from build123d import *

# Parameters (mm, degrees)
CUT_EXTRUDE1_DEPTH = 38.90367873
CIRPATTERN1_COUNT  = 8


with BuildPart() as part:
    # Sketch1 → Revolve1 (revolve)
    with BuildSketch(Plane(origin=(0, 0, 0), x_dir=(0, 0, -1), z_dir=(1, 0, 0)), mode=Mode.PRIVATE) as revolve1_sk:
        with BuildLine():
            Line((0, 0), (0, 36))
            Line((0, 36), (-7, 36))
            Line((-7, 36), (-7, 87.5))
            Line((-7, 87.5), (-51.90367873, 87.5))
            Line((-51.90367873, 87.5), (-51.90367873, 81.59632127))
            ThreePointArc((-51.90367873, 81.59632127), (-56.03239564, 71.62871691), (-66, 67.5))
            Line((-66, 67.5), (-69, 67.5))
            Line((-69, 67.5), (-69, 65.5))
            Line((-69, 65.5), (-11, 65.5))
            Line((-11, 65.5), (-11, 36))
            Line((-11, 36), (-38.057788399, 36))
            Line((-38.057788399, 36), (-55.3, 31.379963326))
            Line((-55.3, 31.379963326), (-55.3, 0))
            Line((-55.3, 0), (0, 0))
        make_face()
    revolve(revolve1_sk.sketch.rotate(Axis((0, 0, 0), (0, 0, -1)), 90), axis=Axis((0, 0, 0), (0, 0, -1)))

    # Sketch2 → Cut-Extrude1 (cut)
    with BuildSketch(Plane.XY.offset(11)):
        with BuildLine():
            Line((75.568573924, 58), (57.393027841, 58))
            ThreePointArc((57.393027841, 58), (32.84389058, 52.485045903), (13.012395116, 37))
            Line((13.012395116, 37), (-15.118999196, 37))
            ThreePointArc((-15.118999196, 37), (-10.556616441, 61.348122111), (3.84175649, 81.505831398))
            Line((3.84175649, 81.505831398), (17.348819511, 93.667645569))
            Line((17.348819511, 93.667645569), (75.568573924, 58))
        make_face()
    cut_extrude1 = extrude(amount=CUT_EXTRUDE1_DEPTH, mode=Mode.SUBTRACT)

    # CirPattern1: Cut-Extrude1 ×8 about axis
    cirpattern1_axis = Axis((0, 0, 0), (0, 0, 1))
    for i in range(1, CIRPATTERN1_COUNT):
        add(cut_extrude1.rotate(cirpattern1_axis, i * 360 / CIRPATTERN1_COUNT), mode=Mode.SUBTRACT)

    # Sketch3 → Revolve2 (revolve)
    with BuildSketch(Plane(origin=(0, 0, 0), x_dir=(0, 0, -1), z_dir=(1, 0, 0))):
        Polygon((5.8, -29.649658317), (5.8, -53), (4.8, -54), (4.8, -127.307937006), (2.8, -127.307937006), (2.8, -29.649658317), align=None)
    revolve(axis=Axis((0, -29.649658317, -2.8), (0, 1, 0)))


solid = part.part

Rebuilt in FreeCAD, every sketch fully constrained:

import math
import FreeCAD as App
import Part
import Sketcher
from FreeCAD import Vector
Q = App.Units.Quantity

doc = App.newDocument("Part")
body = doc.addObject("PartDesign::Body", "Body")

# Sketch on YZ plane
sketch1 = body.newObject("Sketcher::SketchObject", "Sketch")
sketch1.AttachmentSupport = (doc.getObject("YZ_Plane"), [""])
sketch1.MapMode = "FlatFace"
sketch1.addGeometry([
    Part.LineSegment(Vector(0, 0, 0), Vector(36, 0, 0)),  # 0
    Part.LineSegment(Vector(36, 0, 0), Vector(36, 7, 0)),  # 1
    Part.LineSegment(Vector(36, 7, 0), Vector(87.5, 7, 0)),  # 2
    Part.LineSegment(Vector(87.5, 7, 0), Vector(87.5, 51.9, 0)),  # 3
    Part.LineSegment(Vector(87.5, 51.9, 0), Vector(81.6, 51.9, 0)),  # 4
    Part.ArcOfCircle(Part.Circle(Vector(81.6, 66, 0), Vector(0, 0, 1), 14.1), math.radians(180), math.radians(270)),  # 5
    Part.LineSegment(Vector(67.5, 66, 0), Vector(67.5, 69, 0)),  # 6
    Part.LineSegment(Vector(67.5, 69, 0), Vector(65.5, 69, 0)),  # 7
    Part.LineSegment(Vector(65.5, 69, 0), Vector(65.5, 11, 0)),  # 8
    Part.LineSegment(Vector(65.5, 11, 0), Vector(36, 11, 0)),  # 9
    Part.LineSegment(Vector(36, 11, 0), Vector(36, 38.1, 0)),  # 10
    Part.LineSegment(Vector(36, 38.1, 0), Vector(31.4, 55.3, 0)),  # 11
    Part.LineSegment(Vector(31.4, 55.3, 0), Vector(0, 55.3, 0)),  # 12
    Part.LineSegment(Vector(0, 55.3, 0), Vector(0, 0, 0)),  # 13
], False)
sketch1.addConstraint([
    Sketcher.Constraint("Coincident", 0, 2, 1, 1),
    Sketcher.Constraint("Coincident", 1, 2, 2, 1),
    Sketcher.Constraint("Coincident", 2, 2, 3, 1),
    Sketcher.Constraint("Coincident", 3, 2, 4, 1),
    Sketcher.Constraint("Tangent", 4, 2, 5, 2),
    Sketcher.Constraint("Tangent", 5, 1, 6, 1),
    Sketcher.Constraint("Coincident", 6, 2, 7, 1),
    Sketcher.Constraint("Coincident", 7, 2, 8, 1),
    Sketcher.Constraint("Coincident", 8, 2, 9, 1),
    Sketcher.Constraint("Coincident", 9, 2, 10, 1),
    Sketcher.Constraint("Coincident", 10, 2, 11, 1),
    Sketcher.Constraint("Coincident", 11, 2, 12, 1),
    Sketcher.Constraint("Coincident", 12, 2, 13, 1),
    Sketcher.Constraint("Coincident", 13, 2, 0, 1),
    Sketcher.Constraint("Horizontal", 0),
    Sketcher.Constraint("Vertical", 1),
    Sketcher.Constraint("Horizontal", 2),
    Sketcher.Constraint("Vertical", 3),
    Sketcher.Constraint("Horizontal", 4),
    Sketcher.Constraint("Vertical", 6),
    Sketcher.Constraint("Horizontal", 7),
    Sketcher.Constraint("Vertical", 8),
    Sketcher.Constraint("Horizontal", 9),
    Sketcher.Constraint("Vertical", 10),
    Sketcher.Constraint("Horizontal", 12),
    Sketcher.Constraint("Vertical", 13),
    Sketcher.Constraint("Coincident", 13, 2, -1, 1),
    Sketcher.Constraint("Vertical", 1, 2, 9, 2),
    Sketcher.Constraint("DistanceX", 0, 1, 0, 2, 36.0),
    Sketcher.Constraint("DistanceX", 7, 2, 7, 1, 2.0),
    Sketcher.Constraint("DistanceY", 1, 1, 1, 2, 7.0),
    Sketcher.Constraint("DistanceY", 6, 1, 6, 2, 3.0),
    Sketcher.Constraint("DistanceY", 8, 2, 8, 1, 58.0),
    Sketcher.Constraint("Angle", 11, Q("105 deg")),
    Sketcher.Constraint("DistanceX", 2, 1, 2, 2, 51.5),
    Sketcher.Constraint("DistanceX", 9, 2, 9, 1, 29.5),
    Sketcher.Constraint("DistanceY", 13, 2, 13, 1, 55.3),
    Sketcher.Constraint("DistanceY", -1, 1, 5, 3, 66.0),
    Sketcher.Constraint("Radius", 5, 14.096321),
    Sketcher.Constraint("DistanceY", 10, 1, 10, 2, 27.057788),
])
revolution = body.newObject("PartDesign::Revolution", "Revolution")
revolution.Profile = sketch1
revolution.ReferenceAxis = (sketch1, ["V_Axis"])
revolution.Angle = 360

# Sketch on XY plane
sketch2 = body.newObject("Sketcher::SketchObject", "Sketch001")
sketch2.AttachmentSupport = (doc.getObject("XY_Plane"), [""])
sketch2.MapMode = "FlatFace"
sketch2.AttachmentOffset = App.Placement(Vector(0, 0, 11), App.Rotation())
sketch2.addGeometry([
    Part.LineSegment(Vector(57, 58, 0), Vector(76, 58, 0)),  # 0
    Part.LineSegment(Vector(76, 58, 0), Vector(17, 94, 0)),  # 1
    Part.LineSegment(Vector(17, 94, 0), Vector(4, 82, 0)),  # 2
    Part.ArcOfCircle(Part.Circle(Vector(42, 39, 0), Vector(0, 0, 1), 57), math.radians(132), math.radians(182)),  # 3
    Part.LineSegment(Vector(-15, 37, 0), Vector(13, 37, 0)),  # 4
    Part.ArcOfCircle(Part.Circle(Vector(57, 1, 0), Vector(0, 0, 1), 57), math.radians(90), math.radians(141)),  # 5
], False)
sketch2.addConstraint([
    Sketcher.Constraint("Coincident", 0, 2, 1, 1),
    Sketcher.Constraint("Coincident", 1, 2, 2, 1),
    Sketcher.Constraint("Tangent", 2, 2, 3, 1),
    Sketcher.Constraint("Coincident", 3, 2, 4, 1),
    Sketcher.Constraint("Coincident", 4, 2, 5, 2),
    Sketcher.Constraint("Tangent", 5, 1, 0, 1),
    Sketcher.Constraint("Horizontal", 0),
    Sketcher.Constraint("Horizontal", 4),
    Sketcher.Constraint("Equal", 3, 5),
    Sketcher.Constraint("Angle", 2, Q("-138 deg")),
    Sketcher.Constraint("DistanceY", -1, 1, 0, 2, 58.0),
    Sketcher.Constraint("DistanceY", -1, 1, 3, 2, 37.0),
    Sketcher.Constraint("DistanceX", 3, 2, -1, 1, 15.118999),
    Sketcher.Constraint("Radius", 3, 57.396204),
    Sketcher.Constraint("DistanceX", 0, 1, 0, 2, 18.175546),
    Sketcher.Constraint("DistanceX", 4, 1, 4, 2, 28.131394),
    Sketcher.Constraint("DistanceY", -1, 1, 3, 3, 38.85214),
    Sketcher.Constraint("DistanceX", -1, 1, 1, 2, 17.34882),
])
pocket1 = body.newObject("PartDesign::Pocket", "Pocket")
pocket1.Profile = sketch2
pocket1.Length = 38.903679
pocket1.Reversed = True
doc.recompute()

polarpattern = body.newObject("PartDesign::PolarPattern", "PolarPattern")
polarpattern.Originals = [pocket1]
polarpattern.Axis = (doc.getObject("Z_Axis"), [""])
polarpattern.Angle = 360
polarpattern.Occurrences = 8
body.Tip = polarpattern

# Sketch on YZ plane
sketch3 = body.newObject("Sketcher::SketchObject", "Sketch002")
sketch3.AttachmentSupport = (doc.getObject("YZ_Plane"), [""])
sketch3.MapMode = "FlatFace"
sketch3.addGeometry([
    Part.LineSegment(Vector(-53, -5.8, 0), Vector(-29.6, -5.8, 0)),  # 0
    Part.LineSegment(Vector(-29.6, -5.8, 0), Vector(-29.6, -2.8, 0)),  # 1
    Part.LineSegment(Vector(-29.6, -2.8, 0), Vector(-127.3, -2.8, 0)),  # 2
    Part.LineSegment(Vector(-127.3, -2.8, 0), Vector(-127.3, -4.8, 0)),  # 3
    Part.LineSegment(Vector(-127.3, -4.8, 0), Vector(-54, -4.8, 0)),  # 4
    Part.LineSegment(Vector(-54, -4.8, 0), Vector(-53, -5.8, 0)),  # 5
], False)
sketch3.addGeometry(Part.LineSegment(Vector(-127.3, -2.8, 0), Vector(-29.6, -2.8, 0)), True)  # axis
sketch3.addConstraint([
    Sketcher.Constraint("Coincident", 0, 2, 1, 1),
    Sketcher.Constraint("Coincident", 1, 2, 2, 1),
    Sketcher.Constraint("Coincident", 2, 2, 3, 1),
    Sketcher.Constraint("Coincident", 3, 2, 4, 1),
    Sketcher.Constraint("Coincident", 4, 2, 5, 1),
    Sketcher.Constraint("Coincident", 5, 2, 0, 1),
    Sketcher.Constraint("Horizontal", 0),
    Sketcher.Constraint("Vertical", 1),
    Sketcher.Constraint("Horizontal", 2),
    Sketcher.Constraint("Vertical", 3),
    Sketcher.Constraint("Horizontal", 4),
    Sketcher.Constraint("Horizontal", 6),
    Sketcher.Constraint("Coincident", 6, 1, 2, 2),
    Sketcher.Constraint("Vertical", 0, 2, 6, 2),
    Sketcher.Constraint("DistanceY", 1, 1, 1, 2, 3.0),
    Sketcher.Constraint("DistanceY", 3, 2, 3, 1, 2.0),
    Sketcher.Constraint("Angle", 5, Q("-45 deg")),
    Sketcher.Constraint("DistanceX", 4, 2, -1, 1, 54.0),
    Sketcher.Constraint("DistanceY", 0, 2, -1, 1, 5.8),
    Sketcher.Constraint("DistanceX", 0, 1, 0, 2, 23.350342),
    Sketcher.Constraint("DistanceX", 2, 2, 2, 1, 97.658279),
])
revolution2 = body.newObject("PartDesign::Revolution", "Revolution001")
revolution2.Profile = sketch3
revolution2.ReferenceAxis = (sketch3, ["Axis0"])
revolution2.Angle = 360

doc.recompute()
